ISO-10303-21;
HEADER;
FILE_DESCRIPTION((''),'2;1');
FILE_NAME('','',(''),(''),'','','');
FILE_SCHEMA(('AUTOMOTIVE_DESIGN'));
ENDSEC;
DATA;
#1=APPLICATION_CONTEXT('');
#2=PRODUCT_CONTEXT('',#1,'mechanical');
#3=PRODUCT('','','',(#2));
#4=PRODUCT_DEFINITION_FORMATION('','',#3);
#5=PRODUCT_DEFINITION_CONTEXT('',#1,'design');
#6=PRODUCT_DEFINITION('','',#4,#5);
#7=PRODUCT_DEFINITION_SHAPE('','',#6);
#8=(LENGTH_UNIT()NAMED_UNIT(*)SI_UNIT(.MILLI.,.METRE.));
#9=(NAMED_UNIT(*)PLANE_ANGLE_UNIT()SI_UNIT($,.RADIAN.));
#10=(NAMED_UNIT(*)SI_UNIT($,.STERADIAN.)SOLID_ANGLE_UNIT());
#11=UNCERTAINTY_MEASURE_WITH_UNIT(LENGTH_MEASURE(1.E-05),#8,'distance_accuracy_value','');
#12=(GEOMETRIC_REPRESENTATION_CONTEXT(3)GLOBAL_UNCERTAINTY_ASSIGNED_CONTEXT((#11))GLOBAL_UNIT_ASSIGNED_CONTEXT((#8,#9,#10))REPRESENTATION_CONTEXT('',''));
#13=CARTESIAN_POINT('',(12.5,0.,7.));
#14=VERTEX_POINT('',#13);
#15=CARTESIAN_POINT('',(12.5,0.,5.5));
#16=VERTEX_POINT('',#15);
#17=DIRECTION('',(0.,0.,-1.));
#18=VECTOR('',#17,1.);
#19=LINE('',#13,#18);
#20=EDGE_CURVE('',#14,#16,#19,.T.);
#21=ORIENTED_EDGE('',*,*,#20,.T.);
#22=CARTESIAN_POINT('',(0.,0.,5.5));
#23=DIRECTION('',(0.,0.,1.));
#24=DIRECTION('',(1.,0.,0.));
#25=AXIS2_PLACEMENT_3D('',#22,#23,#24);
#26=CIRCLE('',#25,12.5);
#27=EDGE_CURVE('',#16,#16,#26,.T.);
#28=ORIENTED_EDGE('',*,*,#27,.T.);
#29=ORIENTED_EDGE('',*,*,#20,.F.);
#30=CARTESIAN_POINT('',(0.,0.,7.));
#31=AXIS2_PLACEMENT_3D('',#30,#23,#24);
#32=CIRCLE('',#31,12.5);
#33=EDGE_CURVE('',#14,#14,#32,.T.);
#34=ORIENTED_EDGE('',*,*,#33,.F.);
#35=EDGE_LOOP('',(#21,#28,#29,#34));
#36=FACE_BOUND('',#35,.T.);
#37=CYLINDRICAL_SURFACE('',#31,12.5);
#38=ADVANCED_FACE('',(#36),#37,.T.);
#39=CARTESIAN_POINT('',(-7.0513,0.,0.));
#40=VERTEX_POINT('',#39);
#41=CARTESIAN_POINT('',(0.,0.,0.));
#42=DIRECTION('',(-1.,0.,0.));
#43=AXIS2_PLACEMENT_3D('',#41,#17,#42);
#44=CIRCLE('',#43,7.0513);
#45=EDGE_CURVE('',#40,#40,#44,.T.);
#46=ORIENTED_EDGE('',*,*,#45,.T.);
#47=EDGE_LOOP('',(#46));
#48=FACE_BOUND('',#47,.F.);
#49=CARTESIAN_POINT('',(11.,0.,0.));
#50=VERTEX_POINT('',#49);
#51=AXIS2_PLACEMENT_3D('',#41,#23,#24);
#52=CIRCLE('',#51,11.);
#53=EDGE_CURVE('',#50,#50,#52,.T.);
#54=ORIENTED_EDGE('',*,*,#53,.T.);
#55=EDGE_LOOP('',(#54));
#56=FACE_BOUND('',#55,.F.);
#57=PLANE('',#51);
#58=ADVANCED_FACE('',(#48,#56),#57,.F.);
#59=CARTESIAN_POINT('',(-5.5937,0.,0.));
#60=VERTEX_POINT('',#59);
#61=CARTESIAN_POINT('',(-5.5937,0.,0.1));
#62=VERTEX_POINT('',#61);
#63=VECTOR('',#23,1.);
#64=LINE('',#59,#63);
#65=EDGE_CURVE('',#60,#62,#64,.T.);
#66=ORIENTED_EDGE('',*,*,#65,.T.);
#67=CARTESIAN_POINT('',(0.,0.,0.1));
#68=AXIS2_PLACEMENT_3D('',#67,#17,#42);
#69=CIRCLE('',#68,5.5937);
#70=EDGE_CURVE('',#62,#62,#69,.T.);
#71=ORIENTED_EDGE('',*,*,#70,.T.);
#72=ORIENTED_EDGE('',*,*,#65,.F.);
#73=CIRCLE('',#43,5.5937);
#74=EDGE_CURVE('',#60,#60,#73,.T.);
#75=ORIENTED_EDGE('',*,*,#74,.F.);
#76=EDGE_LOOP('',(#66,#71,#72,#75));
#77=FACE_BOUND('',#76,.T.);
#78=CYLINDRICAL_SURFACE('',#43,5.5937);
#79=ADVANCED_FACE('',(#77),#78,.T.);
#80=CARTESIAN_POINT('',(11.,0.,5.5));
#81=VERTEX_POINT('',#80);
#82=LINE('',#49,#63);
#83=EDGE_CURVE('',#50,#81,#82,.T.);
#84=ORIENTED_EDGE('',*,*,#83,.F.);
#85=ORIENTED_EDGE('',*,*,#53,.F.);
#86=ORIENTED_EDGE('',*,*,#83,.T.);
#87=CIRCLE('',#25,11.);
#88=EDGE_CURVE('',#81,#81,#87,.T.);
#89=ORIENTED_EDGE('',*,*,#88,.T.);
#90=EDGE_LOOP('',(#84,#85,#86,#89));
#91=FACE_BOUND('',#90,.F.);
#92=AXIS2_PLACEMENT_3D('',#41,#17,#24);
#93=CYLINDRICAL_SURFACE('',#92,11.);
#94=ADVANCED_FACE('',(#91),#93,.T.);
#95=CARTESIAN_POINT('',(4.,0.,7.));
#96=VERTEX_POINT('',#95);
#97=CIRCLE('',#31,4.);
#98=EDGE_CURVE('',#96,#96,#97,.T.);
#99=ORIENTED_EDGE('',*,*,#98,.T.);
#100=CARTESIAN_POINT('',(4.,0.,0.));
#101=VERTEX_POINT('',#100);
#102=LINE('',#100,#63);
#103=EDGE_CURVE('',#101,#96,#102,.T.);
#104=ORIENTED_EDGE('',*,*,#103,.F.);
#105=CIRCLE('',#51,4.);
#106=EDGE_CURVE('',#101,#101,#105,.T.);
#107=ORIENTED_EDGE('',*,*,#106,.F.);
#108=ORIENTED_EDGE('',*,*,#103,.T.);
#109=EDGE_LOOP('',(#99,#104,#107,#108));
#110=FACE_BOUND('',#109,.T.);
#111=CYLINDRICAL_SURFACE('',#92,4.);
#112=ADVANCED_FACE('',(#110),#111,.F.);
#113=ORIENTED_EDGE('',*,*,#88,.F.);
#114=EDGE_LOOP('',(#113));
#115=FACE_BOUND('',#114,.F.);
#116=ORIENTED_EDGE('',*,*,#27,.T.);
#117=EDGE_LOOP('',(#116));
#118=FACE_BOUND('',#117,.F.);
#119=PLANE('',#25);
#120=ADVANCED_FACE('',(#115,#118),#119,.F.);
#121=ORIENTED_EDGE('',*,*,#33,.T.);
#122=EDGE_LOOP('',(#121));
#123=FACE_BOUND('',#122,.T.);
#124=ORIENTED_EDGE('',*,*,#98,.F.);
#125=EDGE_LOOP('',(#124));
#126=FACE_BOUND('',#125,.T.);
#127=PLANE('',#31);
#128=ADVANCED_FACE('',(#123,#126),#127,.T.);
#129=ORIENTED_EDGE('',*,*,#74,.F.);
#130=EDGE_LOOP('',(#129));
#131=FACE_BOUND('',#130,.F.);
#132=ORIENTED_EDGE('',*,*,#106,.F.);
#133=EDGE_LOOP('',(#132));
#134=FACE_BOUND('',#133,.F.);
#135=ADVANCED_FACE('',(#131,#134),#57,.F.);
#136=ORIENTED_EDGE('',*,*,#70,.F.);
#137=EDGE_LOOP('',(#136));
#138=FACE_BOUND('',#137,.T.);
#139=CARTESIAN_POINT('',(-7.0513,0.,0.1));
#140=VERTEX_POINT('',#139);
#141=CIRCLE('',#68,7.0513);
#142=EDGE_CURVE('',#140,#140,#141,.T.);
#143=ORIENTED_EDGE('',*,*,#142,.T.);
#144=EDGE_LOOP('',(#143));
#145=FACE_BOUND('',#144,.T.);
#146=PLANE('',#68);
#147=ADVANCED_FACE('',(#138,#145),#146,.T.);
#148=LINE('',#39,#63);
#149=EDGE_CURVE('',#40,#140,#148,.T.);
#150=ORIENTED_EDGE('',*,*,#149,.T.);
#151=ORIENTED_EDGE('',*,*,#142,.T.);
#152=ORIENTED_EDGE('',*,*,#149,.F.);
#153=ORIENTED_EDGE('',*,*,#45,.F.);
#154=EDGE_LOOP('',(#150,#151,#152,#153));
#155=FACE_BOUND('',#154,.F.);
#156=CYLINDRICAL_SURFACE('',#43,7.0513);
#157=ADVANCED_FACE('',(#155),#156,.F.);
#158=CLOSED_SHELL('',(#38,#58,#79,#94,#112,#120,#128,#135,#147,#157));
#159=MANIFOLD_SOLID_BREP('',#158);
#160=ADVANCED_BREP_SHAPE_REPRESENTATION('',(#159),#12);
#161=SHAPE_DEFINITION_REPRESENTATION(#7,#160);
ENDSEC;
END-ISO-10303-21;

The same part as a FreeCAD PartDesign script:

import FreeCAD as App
import Part
import Sketcher

doc = App.newDocument("Part")
body = doc.addObject("PartDesign::Body", "Body")

# Sketch on XY plane
sketch1 = doc.addObject("Sketcher::SketchObject", "Sketch")
body.addObject(sketch1)
sketch1.AttachmentSupport = (doc.XY_Plane, [""])
sketch1.MapMode = "FlatFace"
sketch1.addGeometry([
    Part.Circle(App.Vector(0, 0, 0), App.Vector(0, 0, 1), 11),
    Part.Circle(App.Vector(0, 0, 0), App.Vector(0, 0, 1), 4),
], False)
sketch1.addConstraint([
    Sketcher.Constraint("Coincident", 0, 3, -1, 1),
    Sketcher.Constraint("Coincident", 1, 3, -1, 1),
    Sketcher.Constraint("Diameter", 0, 22.0),
    Sketcher.Constraint("Diameter", 1, 8.0),
])
pad1 = doc.addObject("PartDesign::Pad", "Pad")
body.addObject(pad1)
pad1.Profile = sketch1
pad1.Length = 7

# Sketch on XY plane
sketch2 = doc.addObject("Sketcher::SketchObject", "Sketch001")
body.addObject(sketch2)
sketch2.AttachmentSupport = (doc.XY_Plane, [""])
sketch2.MapMode = "FlatFace"
sketch2.AttachmentOffset = App.Placement(App.Vector(0, 0, 7), App.Rotation())
sketch2.addGeometry([
    Part.Circle(App.Vector(0, 0, 0), App.Vector(0, 0, 1), 12),
    Part.Circle(App.Vector(0, 0, 0), App.Vector(0, 0, 1), 11),
], False)
sketch2.addConstraint([
    Sketcher.Constraint("Coincident", 0, 3, -1, 1),
    Sketcher.Constraint("Coincident", 1, 3, -1, 1),
    Sketcher.Constraint("Diameter", 0, 25.0),
    Sketcher.Constraint("Diameter", 1, 22.0),
])
pad2 = doc.addObject("PartDesign::Pad", "Pad001")
body.addObject(pad2)
pad2.Profile = sketch2
pad2.Length = 1.5
pad2.Reversed = True

# Sketch on XY plane
sketch3 = doc.addObject("Sketcher::SketchObject", "Sketch002")
body.addObject(sketch3)
sketch3.AttachmentSupport = (doc.XY_Plane, [""])
sketch3.MapMode = "FlatFace"
sketch3.addGeometry([
    Part.Circle(App.Vector(0, 0, 0), App.Vector(0, 0, 1), 7),
    Part.Circle(App.Vector(0, 0, 0), App.Vector(0, 0, 1), 6),
], False)
sketch3.addConstraint([
    Sketcher.Constraint("Coincident", 0, 3, -1, 1),
    Sketcher.Constraint("Coincident", 1, 3, -1, 1),
    Sketcher.Constraint("Diameter", 0, 14.1026),
    Sketcher.Constraint("Diameter", 1, 11.1874),
])
pocket1 = doc.addObject("PartDesign::Pocket", "Pocket")
body.addObject(pocket1)
pocket1.Profile = sketch3
pocket1.Length = 0.1
pocket1.Reversed = True

doc.recompute()
